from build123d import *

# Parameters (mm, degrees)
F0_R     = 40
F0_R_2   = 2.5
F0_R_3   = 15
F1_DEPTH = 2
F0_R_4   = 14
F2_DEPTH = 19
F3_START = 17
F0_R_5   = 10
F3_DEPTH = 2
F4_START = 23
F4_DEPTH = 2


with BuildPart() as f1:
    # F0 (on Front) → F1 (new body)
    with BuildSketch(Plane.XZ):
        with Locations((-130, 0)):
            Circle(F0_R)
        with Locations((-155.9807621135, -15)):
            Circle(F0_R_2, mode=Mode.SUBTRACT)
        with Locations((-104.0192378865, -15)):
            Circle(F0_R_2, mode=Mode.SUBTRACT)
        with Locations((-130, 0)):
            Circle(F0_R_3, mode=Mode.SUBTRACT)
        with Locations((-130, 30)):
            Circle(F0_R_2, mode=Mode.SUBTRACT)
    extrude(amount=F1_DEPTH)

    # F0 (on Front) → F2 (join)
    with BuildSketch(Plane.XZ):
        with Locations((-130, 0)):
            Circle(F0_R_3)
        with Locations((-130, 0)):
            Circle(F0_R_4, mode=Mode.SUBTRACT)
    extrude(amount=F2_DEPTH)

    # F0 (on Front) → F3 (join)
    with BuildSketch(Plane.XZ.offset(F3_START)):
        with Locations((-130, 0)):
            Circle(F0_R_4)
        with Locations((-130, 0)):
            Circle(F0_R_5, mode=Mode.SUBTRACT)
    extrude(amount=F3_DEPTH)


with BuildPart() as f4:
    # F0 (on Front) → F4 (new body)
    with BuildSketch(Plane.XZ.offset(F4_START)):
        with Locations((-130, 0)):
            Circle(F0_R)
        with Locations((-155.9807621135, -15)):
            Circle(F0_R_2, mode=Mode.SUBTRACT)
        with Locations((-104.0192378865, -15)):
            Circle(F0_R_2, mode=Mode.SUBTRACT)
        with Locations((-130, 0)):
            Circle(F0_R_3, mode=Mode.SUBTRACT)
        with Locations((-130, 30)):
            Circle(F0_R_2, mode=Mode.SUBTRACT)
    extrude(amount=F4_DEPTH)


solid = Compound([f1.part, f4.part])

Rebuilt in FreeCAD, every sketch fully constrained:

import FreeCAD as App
import Part
import Sketcher
from FreeCAD import Vector

doc = App.newDocument("Part")
params = doc.addObject("Spreadsheet::Sheet", "Params")
for row, (alias, value) in enumerate([
    ("sketch1_diameter", "80 mm"),
    ("sketch1_diameter2", "5 mm"),
    ("sketch1_diameter3", "30 mm"),
    ("pad1_length", "2 mm"),
    ("sketch2_diameter", "30 mm"),
    ("sketch2_diameter2", "28 mm"),
    ("pad2_length", "19 mm"),
    ("sketch3_diameter", "28 mm"),
    ("sketch3_diameter2", "20 mm"),
    ("pad3_length", "2 mm"),
    ("sketch4_diameter", "80 mm"),
    ("sketch4_diameter2", "5 mm"),
    ("sketch4_diameter3", "30 mm"),
    ("pad4_length", "2 mm"),
], start=1):
    params.set(f"A{row}", alias)
    params.set(f"B{row}", "=" + value)
    params.setAlias(f"B{row}", alias)

body = doc.addObject("PartDesign::Body", "Body")

sketch1 = doc.addObject("Sketcher::SketchObject", "Sketch")
body.addObject(sketch1)
sketch1.AttachmentSupport = (doc.XZ_Plane, [""])
sketch1.MapMode = "FlatFace"
sketch1.addGeometry(Part.Circle(Vector(-130, 0, 0), Vector(0, 0, 1), 40), False)
sketch1.addGeometry(Part.Circle(Vector(-156, -15, 0), Vector(0, 0, 1), 2.5), False)
sketch1.addGeometry(Part.Circle(Vector(-130, 0, 0), Vector(0, 0, 1), 15), False)
sketch1.addGeometry(Part.Circle(Vector(-104, -15, 0), Vector(0, 0, 1), 2.5), False)
sketch1.addGeometry(Part.Circle(Vector(-130, 30, 0), Vector(0, 0, 1), 2.5), False)
sketch1.addConstraint(Sketcher.Constraint("Coincident", 2, 3, 0, 3))
sketch1.addConstraint(Sketcher.Constraint("Equal", 1, 3))
sketch1.addConstraint(Sketcher.Constraint("Equal", 3, 4))
sketch1.addConstraint(Sketcher.Constraint("PointOnObject", 0, 3, -1))
sketch1.addConstraint(Sketcher.Constraint("Horizontal", 1, 3, 3, 3))
sketch1.addConstraint(Sketcher.Constraint("Vertical", 2, 3, 4, 3))
sketch1.addConstraint(Sketcher.Constraint("Diameter", 0, 80.0))
sketch1.addConstraint(Sketcher.Constraint("Diameter", 1, 5.0))
sketch1.addConstraint(Sketcher.Constraint("Diameter", 2, 30.0))
sketch1.addConstraint(Sketcher.Constraint("DistanceX", 0, 3, -1, 1, 130.0))
sketch1.addConstraint(Sketcher.Constraint("DistanceY", 1, 3, -1, 1, 15.0))
sketch1.addConstraint(Sketcher.Constraint("DistanceY", -1, 1, 4, 3, 30.0))
sketch1.addConstraint(Sketcher.Constraint("DistanceX", 1, 3, -1, 1, 155.980762))
sketch1.addConstraint(Sketcher.Constraint("DistanceX", 3, 3, -1, 1, 104.019238))
sketch1.setExpression("Constraints[6]", "Params.sketch1_diameter")
sketch1.setExpression("Constraints[7]", "Params.sketch1_diameter2")
sketch1.setExpression("Constraints[8]", "Params.sketch1_diameter3")
pad1 = doc.addObject("PartDesign::Pad", "Pad")
body.addObject(pad1)
pad1.Profile = sketch1
pad1.setExpression("Length", "Params.pad1_length")

sketch2 = doc.addObject("Sketcher::SketchObject", "Sketch001")
body.addObject(sketch2)
sketch2.AttachmentSupport = (doc.XZ_Plane, [""])
sketch2.MapMode = "FlatFace"
sketch2.addGeometry(Part.Circle(Vector(-130, 0, 0), Vector(0, 0, 1), 15), False)
sketch2.addGeometry(Part.Circle(Vector(-130, 0, 0), Vector(0, 0, 1), 14), False)
sketch2.addConstraint(Sketcher.Constraint("Coincident", 1, 3, 0, 3))
sketch2.addConstraint(Sketcher.Constraint("PointOnObject", 0, 3, -1))
sketch2.addConstraint(Sketcher.Constraint("Diameter", 0, 30.0))
sketch2.addConstraint(Sketcher.Constraint("Diameter", 1, 28.0))
sketch2.addConstraint(Sketcher.Constraint("DistanceX", 0, 3, -1, 1, 130.0))
sketch2.setExpression("Constraints[2]", "Params.sketch2_diameter")
sketch2.setExpression("Constraints[3]", "Params.sketch2_diameter2")
pad2 = doc.addObject("PartDesign::Pad", "Pad001")
body.addObject(pad2)
pad2.Profile = sketch2
pad2.setExpression("Length", "Params.pad2_length")

sketch3 = doc.addObject("Sketcher::SketchObject", "Sketch002")
body.addObject(sketch3)
sketch3.AttachmentSupport = (doc.XZ_Plane, [""])
sketch3.MapMode = "FlatFace"
sketch3.AttachmentOffset = App.Placement(Vector(0, 0, 17), App.Rotation())
sketch3.addGeometry(Part.Circle(Vector(-130, 0, 0), Vector(0, 0, 1), 14), False)
sketch3.addGeometry(Part.Circle(Vector(-130, 0, 0), Vector(0, 0, 1), 10), False)
sketch3.addConstraint(Sketcher.Constraint("Coincident", 1, 3, 0, 3))
sketch3.addConstraint(Sketcher.Constraint("PointOnObject", 0, 3, -1))
sketch3.addConstraint(Sketcher.Constraint("Diameter", 0, 28.0))
sketch3.addConstraint(Sketcher.Constraint("Diameter", 1, 20.0))
sketch3.addConstraint(Sketcher.Constraint("DistanceX", 0, 3, -1, 1, 130.0))
sketch3.setExpression("Constraints[2]", "Params.sketch3_diameter")
sketch3.setExpression("Constraints[3]", "Params.sketch3_diameter2")
pad3 = doc.addObject("PartDesign::Pad", "Pad002")
body.addObject(pad3)
pad3.Profile = sketch3
pad3.setExpression("Length", "Params.pad3_length")
body2 = doc.addObject("PartDesign::Body", "Body001")

sketch4 = doc.addObject("Sketcher::SketchObject", "Sketch003")
body2.addObject(sketch4)
sketch4.AttachmentSupport = (doc.getObject("XZ_Plane001"), [""])
sketch4.MapMode = "FlatFace"
sketch4.AttachmentOffset = App.Placement(Vector(0, 0, 23), App.Rotation())
sketch4.addGeometry(Part.Circle(Vector(-130, 0, 0), Vector(0, 0, 1), 40), False)
sketch4.addGeometry(Part.Circle(Vector(-156, -15, 0), Vector(0, 0, 1), 2.5), False)
sketch4.addGeometry(Part.Circle(Vector(-130, 0, 0), Vector(0, 0, 1), 15), False)
sketch4.addGeometry(Part.Circle(Vector(-104, -15, 0), Vector(0, 0, 1), 2.5), False)
sketch4.addGeometry(Part.Circle(Vector(-130, 30, 0), Vector(0, 0, 1), 2.5), False)
sketch4.addConstraint(Sketcher.Constraint("Coincident", 2, 3, 0, 3))
sketch4.addConstraint(Sketcher.Constraint("Equal", 1, 3))
sketch4.addConstraint(Sketcher.Constraint("Equal", 3, 4))
sketch4.addConstraint(Sketcher.Constraint("PointOnObject", 0, 3, -1))
sketch4.addConstraint(Sketcher.Constraint("Horizontal", 1, 3, 3, 3))
sketch4.addConstraint(Sketcher.Constraint("Vertical", 2, 3, 4, 3))
sketch4.addConstraint(Sketcher.Constraint("Diameter", 0, 80.0))
sketch4.addConstraint(Sketcher.Constraint("Diameter", 1, 5.0))
sketch4.addConstraint(Sketcher.Constraint("Diameter", 2, 30.0))
sketch4.addConstraint(Sketcher.Constraint("DistanceX", 0, 3, -1, 1, 130.0))
sketch4.addConstraint(Sketcher.Constraint("DistanceY", 1, 3, -1, 1, 15.0))
sketch4.addConstraint(Sketcher.Constraint("DistanceY", -1, 1, 4, 3, 30.0))
sketch4.addConstraint(Sketcher.Constraint("DistanceX", 1, 3, -1, 1, 155.980762))
sketch4.addConstraint(Sketcher.Constraint("DistanceX", 3, 3, -1, 1, 104.019238))
sketch4.setExpression("Constraints[6]", "Params.sketch4_diameter")
sketch4.setExpression("Constraints[7]", "Params.sketch4_diameter2")
sketch4.setExpression("Constraints[8]", "Params.sketch4_diameter3")
pad4 = doc.addObject("PartDesign::Pad", "Pad003")
body2.addObject(pad4)
pad4.Profile = sketch4
pad4.setExpression("Length", "Params.pad4_length")

doc.recompute()
